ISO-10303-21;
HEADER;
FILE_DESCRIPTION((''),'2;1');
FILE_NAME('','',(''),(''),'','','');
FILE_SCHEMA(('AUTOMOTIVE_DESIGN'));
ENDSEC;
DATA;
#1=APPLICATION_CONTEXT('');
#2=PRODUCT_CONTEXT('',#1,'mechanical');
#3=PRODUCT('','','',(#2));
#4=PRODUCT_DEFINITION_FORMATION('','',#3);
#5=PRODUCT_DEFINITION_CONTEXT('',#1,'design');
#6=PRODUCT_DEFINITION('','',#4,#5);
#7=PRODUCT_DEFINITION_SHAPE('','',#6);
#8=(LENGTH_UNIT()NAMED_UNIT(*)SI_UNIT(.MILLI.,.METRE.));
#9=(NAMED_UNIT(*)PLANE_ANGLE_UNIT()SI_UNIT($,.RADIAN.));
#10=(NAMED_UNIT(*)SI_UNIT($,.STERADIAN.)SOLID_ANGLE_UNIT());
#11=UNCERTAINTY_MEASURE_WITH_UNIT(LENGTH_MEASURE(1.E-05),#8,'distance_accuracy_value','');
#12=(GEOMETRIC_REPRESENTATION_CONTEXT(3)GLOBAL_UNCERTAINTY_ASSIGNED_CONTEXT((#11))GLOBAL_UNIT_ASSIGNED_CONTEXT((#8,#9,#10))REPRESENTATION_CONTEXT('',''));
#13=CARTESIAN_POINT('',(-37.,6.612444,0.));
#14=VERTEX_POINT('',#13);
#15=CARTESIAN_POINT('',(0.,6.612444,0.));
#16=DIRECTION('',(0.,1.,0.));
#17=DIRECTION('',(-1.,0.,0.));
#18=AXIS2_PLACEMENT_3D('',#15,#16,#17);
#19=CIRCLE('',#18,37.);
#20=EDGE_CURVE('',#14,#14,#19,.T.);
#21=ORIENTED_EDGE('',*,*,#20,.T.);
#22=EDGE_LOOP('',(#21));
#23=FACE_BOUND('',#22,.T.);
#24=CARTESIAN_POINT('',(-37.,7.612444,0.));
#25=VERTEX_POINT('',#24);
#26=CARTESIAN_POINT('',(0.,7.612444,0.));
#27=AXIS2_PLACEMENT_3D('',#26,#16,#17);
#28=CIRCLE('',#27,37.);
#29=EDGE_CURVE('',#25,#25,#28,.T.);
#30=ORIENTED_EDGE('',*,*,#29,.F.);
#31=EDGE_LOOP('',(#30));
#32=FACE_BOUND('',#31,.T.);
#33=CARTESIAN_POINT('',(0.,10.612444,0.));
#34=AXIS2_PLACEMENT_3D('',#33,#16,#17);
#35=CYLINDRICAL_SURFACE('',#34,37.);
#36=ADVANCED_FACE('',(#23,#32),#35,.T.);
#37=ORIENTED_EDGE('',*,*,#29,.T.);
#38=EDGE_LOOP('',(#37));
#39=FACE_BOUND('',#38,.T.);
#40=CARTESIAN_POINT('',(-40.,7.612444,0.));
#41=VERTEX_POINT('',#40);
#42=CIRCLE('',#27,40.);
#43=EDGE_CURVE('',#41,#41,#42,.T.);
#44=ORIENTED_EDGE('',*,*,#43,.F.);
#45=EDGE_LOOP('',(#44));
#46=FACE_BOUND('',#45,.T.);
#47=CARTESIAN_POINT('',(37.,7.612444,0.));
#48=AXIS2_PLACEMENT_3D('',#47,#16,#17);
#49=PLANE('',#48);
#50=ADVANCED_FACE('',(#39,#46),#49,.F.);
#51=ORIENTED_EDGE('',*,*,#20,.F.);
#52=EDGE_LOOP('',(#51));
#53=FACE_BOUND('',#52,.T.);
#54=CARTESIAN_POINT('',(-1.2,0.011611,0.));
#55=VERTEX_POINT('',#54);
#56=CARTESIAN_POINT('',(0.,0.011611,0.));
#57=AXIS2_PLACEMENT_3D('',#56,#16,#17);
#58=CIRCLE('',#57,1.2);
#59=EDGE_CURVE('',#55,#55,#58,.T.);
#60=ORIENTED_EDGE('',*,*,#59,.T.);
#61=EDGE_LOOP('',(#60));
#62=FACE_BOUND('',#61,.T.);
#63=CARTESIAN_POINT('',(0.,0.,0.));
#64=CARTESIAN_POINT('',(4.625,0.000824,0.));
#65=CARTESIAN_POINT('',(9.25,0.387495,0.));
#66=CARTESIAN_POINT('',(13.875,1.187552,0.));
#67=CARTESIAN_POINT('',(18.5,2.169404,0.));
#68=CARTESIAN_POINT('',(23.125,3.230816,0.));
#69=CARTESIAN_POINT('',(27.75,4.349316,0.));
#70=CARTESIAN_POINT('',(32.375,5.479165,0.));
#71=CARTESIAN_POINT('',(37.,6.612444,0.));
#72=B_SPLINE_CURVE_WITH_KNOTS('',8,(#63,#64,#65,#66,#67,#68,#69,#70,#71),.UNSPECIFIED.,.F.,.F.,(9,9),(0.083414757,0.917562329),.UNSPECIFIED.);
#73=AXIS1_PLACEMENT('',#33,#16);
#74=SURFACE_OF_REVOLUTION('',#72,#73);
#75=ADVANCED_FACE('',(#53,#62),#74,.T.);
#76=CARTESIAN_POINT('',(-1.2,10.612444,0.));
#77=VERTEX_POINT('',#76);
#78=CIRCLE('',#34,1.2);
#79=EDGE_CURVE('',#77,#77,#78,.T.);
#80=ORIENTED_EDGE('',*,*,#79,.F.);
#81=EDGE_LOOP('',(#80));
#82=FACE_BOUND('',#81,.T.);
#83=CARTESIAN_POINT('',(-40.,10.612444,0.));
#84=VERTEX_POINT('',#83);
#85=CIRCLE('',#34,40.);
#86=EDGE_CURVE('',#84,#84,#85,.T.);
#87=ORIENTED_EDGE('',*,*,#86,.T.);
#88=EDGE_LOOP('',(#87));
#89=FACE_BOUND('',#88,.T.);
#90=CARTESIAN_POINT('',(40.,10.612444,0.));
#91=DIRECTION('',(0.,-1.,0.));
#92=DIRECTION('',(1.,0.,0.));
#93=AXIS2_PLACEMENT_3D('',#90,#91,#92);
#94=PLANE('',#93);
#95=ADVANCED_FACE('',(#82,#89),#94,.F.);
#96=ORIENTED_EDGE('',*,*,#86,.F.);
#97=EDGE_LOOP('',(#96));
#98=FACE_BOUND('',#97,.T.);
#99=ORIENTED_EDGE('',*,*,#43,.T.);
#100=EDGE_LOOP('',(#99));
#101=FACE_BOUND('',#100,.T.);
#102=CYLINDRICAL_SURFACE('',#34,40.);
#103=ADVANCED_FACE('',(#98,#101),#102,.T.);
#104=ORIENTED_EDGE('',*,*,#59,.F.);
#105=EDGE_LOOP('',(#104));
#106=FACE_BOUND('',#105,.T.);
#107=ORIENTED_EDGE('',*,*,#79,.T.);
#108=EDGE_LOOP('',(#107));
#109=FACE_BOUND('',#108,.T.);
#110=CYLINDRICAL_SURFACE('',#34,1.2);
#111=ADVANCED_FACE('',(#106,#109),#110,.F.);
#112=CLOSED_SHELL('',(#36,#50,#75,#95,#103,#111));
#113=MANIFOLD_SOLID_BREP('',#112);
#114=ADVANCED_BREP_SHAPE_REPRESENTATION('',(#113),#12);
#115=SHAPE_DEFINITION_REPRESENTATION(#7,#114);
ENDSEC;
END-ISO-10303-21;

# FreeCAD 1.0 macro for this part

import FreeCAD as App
import Part
import Sketcher
Q = App.Units.Quantity

doc = App.newDocument("Part")
body = doc.addObject("PartDesign::Body", "Body")

# Sketch on XY plane
sketch1 = doc.addObject("Sketcher::SketchObject", "Sketch")
body.addObject(sketch1)
sketch1.AttachmentSupport = (doc.XY_Plane, [""])
sketch1.MapMode = "FlatFace"
sketch1.addGeometry(Part.LineSegment(App.Vector(1.2, 10.612444, 0), App.Vector(1.2, 5.612444, 0)), False)
sketch1.addGeometry(Part.LineSegment(App.Vector(1.2, 5.612444, 0), App.Vector(0, 5.612444, 0)), False)
sketch1.addGeometry(Part.LineSegment(App.Vector(0, 5.612444, 0), App.Vector(0, 0, 0)), False)
sketch1.addGeometry(Part.BSplineCurve([App.Vector(0, 0, 0), App.Vector(4.625, 0.000824, 0), App.Vector(9.25, 0.387495, 0), App.Vector(13.875, 1.187552, 0), App.Vector(18.5, 2.169404, 0), App.Vector(23.125, 3.230816, 0), App.Vector(27.75, 4.349316, 0), App.Vector(32.375, 5.479165, 0), App.Vector(37, 6.612444, 0)], [9, 9], [0.083414757, 0.917562329], False, 8, [1, 1, 1, 1, 1, 1, 1, 1, 1], False), False)
sketch1.addGeometry(Part.LineSegment(App.Vector(37, 6.612444, 0), App.Vector(37, 7.612444, 0)), False)
sketch1.addGeometry(Part.LineSegment(App.Vector(37, 7.612444, 0), App.Vector(40, 7.612444, 0)), False)
sketch1.addGeometry(Part.LineSegment(App.Vector(40, 7.612444, 0), App.Vector(40, 10.612444, 0)), False)
sketch1.addGeometry(Part.LineSegment(App.Vector(40, 10.612444, 0), App.Vector(1.2, 10.612444, 0)), False)
sketch1.addConstraint(Sketcher.Constraint("Block", 3))
sketch1.addConstraint(Sketcher.Constraint("Coincident", 0, 2, 1, 1))
sketch1.addConstraint(Sketcher.Constraint("Coincident", 1, 2, 2, 1))
sketch1.addConstraint(Sketcher.Constraint("Coincident", 2, 2, 3, 1))
sketch1.addConstraint(Sketcher.Constraint("Coincident", 3, 2, 4, 1))
sketch1.addConstraint(Sketcher.Constraint("Coincident", 4, 2, 5, 1))
sketch1.addConstraint(Sketcher.Constraint("Coincident", 5, 2, 6, 1))
sketch1.addConstraint(Sketcher.Constraint("Coincident", 6, 2, 7, 1))
sketch1.addConstraint(Sketcher.Constraint("Coincident", 7, 2, 0, 1))
sketch1.addConstraint(Sketcher.Constraint("Vertical", 0))
sketch1.addConstraint(Sketcher.Constraint("Horizontal", 1))
sketch1.addConstraint(Sketcher.Constraint("Vertical", 2))
sketch1.addConstraint(Sketcher.Constraint("Vertical", 4))
sketch1.addConstraint(Sketcher.Constraint("Horizontal", 5))
sketch1.addConstraint(Sketcher.Constraint("Vertical", 6))
sketch1.addConstraint(Sketcher.Constraint("Horizontal", 7))
sketch1.addConstraint(Sketcher.Constraint("Equal", 5, 6))
sketch1.addConstraint(Sketcher.Constraint("DistanceX", 5, 1, 5, 2, Q("3 mm")))
sketch1.addConstraint(Sketcher.Constraint("DistanceY", 0, 2, 0, 1, Q("5 mm")))
sketch1.addConstraint(Sketcher.Constraint("DistanceY", 4, 1, 4, 2, Q("1 mm")))
sketch1.addConstraint(Sketcher.Constraint("DistanceX", 1, 2, 1, 1, Q("1.2 mm")))
revolution = doc.addObject("PartDesign::Revolution", "Revolution")
body.addObject(revolution)
revolution.Profile = sketch1
revolution.ReferenceAxis = (sketch1, ["V_Axis"])
revolution.Angle = 360

# Sketch on XZ plane
sketch2 = doc.addObject("Sketcher::SketchObject", "Sketch001")
body.addObject(sketch2)
sketch2.AttachmentSupport = (doc.XZ_Plane, [""])
sketch2.MapMode = "FlatFace"
sketch2.AttachmentOffset = App.Placement(App.Vector(0, 0, -10.612444), App.Rotation())
sketch2.addGeometry(Part.Circle(App.Vector(0, 0, 0), App.Vector(0, 0, 1), 1.2), False)
sketch2.addConstraint(Sketcher.Constraint("Coincident", 0, 3, -1, 1))
sketch2.addConstraint(Sketcher.Constraint("Diameter", 0, Q("2.4 mm")))
pocket1 = doc.addObject("PartDesign::Pocket", "Pocket")
body.addObject(pocket1)
pocket1.Profile = sketch2
pocket1.Type = "ThroughAll"
pocket1.Reversed = True

doc.recompute()
